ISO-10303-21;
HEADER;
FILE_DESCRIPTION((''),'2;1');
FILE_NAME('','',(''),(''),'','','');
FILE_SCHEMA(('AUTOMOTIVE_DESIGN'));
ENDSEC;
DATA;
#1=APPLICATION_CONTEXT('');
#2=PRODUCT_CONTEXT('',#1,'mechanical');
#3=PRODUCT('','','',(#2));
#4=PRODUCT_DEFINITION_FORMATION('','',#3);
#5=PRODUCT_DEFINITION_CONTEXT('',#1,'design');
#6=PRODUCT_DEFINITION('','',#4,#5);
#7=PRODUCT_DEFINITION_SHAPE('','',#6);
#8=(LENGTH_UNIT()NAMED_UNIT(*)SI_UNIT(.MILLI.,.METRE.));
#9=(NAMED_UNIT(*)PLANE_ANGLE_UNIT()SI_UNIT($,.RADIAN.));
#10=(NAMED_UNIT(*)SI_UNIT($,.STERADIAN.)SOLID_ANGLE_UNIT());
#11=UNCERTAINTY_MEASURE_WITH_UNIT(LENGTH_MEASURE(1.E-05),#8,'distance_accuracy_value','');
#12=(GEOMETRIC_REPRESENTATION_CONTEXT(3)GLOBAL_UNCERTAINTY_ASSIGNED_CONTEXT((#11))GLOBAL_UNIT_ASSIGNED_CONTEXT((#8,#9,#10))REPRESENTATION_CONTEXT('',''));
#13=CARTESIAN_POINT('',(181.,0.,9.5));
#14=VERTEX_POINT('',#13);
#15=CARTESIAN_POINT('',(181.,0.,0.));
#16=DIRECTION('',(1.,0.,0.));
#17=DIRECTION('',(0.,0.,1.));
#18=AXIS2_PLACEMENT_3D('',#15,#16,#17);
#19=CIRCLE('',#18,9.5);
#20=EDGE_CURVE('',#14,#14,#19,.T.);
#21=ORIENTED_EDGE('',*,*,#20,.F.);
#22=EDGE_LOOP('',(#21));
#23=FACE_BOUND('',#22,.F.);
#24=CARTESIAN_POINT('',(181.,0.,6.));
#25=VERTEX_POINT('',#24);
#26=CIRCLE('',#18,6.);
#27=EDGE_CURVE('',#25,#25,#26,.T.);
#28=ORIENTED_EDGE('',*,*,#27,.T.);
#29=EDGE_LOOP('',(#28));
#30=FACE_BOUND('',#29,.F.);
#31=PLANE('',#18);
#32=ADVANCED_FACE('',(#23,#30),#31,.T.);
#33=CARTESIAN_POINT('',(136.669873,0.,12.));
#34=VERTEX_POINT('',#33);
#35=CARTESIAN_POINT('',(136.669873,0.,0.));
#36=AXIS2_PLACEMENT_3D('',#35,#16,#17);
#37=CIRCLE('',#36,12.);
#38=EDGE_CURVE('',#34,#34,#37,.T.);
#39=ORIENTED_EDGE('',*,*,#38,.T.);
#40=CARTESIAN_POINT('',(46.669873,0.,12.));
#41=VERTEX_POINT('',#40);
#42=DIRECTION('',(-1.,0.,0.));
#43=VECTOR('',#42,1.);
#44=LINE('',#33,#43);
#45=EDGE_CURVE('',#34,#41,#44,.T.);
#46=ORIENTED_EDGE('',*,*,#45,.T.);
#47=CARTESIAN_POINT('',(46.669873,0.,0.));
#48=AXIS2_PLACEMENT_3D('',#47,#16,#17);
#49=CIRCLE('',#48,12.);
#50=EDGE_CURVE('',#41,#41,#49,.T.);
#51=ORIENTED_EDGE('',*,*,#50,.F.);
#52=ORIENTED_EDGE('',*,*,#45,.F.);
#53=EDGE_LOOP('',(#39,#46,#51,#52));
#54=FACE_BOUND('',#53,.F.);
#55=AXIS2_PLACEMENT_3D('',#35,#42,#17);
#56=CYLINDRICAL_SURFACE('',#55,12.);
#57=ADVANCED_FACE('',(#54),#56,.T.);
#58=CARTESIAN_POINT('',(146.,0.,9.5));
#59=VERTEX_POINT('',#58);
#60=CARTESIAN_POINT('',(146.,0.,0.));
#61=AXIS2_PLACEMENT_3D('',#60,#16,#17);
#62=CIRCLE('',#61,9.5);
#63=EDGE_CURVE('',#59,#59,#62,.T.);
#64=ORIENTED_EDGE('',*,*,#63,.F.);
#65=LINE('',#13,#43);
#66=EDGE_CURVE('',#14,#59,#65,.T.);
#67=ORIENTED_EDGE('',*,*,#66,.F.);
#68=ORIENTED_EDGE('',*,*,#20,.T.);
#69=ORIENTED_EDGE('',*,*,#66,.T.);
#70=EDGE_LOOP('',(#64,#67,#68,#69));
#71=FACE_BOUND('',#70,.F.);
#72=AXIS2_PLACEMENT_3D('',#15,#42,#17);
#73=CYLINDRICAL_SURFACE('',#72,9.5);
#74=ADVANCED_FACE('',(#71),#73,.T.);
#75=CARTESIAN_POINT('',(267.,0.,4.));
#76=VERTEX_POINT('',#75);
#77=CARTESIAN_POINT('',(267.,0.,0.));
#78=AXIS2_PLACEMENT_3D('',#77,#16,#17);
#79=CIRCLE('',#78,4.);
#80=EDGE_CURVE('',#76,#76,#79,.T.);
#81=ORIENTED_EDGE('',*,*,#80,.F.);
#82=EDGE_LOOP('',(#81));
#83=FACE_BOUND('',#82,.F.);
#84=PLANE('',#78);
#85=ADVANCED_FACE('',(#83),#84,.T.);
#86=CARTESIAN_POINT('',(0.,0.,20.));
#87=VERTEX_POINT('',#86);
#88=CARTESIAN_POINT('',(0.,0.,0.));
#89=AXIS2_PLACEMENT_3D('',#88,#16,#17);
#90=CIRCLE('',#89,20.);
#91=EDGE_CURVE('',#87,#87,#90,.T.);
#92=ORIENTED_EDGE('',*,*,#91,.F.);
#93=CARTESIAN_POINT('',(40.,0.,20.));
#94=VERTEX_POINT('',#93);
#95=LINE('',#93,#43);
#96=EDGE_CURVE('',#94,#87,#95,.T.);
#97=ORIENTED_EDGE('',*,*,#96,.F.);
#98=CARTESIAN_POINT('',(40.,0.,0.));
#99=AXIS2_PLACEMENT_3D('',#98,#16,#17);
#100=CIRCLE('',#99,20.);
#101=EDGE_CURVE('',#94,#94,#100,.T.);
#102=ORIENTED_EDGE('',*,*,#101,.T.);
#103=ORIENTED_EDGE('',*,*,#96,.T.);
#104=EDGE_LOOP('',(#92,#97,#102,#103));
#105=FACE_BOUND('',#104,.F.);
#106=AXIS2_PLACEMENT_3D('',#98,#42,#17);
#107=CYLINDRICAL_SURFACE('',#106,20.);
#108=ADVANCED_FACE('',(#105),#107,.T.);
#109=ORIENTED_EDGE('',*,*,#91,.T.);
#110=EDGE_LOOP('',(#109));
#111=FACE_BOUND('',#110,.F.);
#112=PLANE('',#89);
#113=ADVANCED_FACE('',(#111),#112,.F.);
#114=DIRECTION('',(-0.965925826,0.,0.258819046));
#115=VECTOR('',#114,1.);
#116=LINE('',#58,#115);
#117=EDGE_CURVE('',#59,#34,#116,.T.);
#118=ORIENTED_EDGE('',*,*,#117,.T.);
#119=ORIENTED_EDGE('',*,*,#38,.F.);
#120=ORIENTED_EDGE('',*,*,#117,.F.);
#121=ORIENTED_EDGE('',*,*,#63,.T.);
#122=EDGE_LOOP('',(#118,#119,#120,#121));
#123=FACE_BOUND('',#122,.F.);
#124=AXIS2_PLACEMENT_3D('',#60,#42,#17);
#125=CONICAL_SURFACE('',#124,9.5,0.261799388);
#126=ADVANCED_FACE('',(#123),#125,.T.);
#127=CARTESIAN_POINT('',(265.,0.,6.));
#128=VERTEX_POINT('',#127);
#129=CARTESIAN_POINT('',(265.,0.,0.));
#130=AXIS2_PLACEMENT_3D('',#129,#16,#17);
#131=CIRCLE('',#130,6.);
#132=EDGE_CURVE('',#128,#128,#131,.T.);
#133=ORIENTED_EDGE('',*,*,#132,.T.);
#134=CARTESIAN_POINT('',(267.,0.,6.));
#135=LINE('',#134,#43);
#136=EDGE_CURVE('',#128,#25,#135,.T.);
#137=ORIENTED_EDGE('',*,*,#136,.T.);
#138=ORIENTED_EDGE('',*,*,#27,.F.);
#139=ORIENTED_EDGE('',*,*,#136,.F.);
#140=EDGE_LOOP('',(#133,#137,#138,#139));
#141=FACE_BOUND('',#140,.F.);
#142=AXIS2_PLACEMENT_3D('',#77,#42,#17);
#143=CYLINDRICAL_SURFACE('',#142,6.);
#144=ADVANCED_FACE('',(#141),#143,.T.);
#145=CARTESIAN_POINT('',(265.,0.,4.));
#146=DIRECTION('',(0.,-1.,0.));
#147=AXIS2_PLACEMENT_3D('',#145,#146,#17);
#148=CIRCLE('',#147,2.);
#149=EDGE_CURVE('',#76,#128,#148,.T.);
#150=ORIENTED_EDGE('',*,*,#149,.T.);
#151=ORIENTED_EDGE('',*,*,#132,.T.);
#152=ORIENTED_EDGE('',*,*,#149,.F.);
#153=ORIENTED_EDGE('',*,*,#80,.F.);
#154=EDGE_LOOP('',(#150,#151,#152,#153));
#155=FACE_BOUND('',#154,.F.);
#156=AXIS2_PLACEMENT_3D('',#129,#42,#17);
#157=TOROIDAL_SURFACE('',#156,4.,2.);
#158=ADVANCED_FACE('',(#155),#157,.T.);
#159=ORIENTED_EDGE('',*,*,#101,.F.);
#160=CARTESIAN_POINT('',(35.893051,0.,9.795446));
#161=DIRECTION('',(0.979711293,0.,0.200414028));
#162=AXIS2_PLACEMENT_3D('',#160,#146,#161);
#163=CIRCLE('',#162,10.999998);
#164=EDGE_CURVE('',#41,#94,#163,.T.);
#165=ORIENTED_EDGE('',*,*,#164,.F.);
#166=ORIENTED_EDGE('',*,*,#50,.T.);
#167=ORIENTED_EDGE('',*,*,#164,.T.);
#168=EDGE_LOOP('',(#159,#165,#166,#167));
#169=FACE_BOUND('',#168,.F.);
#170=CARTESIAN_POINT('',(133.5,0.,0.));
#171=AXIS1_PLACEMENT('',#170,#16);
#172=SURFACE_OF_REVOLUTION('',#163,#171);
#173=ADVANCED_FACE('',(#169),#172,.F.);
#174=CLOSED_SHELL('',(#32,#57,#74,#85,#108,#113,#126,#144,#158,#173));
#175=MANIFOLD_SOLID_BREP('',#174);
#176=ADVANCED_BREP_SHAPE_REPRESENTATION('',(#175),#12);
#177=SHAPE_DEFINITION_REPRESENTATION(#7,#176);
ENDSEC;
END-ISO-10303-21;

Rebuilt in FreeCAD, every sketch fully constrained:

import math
import FreeCAD as App
import Part
import Sketcher

V = App.Vector
Q = App.Units.Quantity


def edges_at(feature, points):
    """Names of the edges that pass closest to the given points."""
    edges = feature.Shape.Edges
    near = lambda p: min(range(len(edges)), key=lambda i: edges[i].distToShape(Part.Vertex(*p))[0])
    return sorted({f"Edge{near(p) + 1}" for p in points})

doc = App.newDocument("Part")
body = doc.addObject("PartDesign::Body", "Body")

# Sketch on XZ plane
sketch1 = body.newObject("Sketcher::SketchObject", "Sketch")
sketch1.AttachmentSupport = (doc.getObject("XZ_Plane"), [""])
sketch1.MapMode = "FlatFace"
sketch1.addGeometry([
    Part.LineSegment(V(0, 0, 0), V(267, 0, 0)),  # 0
    Part.LineSegment(V(267, 0, 0), V(267, 6, 0)),  # 1
    Part.LineSegment(V(267, 6, 0), V(181, 6, 0)),  # 2
    Part.LineSegment(V(181, 6, 0), V(181, 9.5, 0)),  # 3
    Part.LineSegment(V(181, 9.5, 0), V(146, 9.5, 0)),  # 4
    Part.LineSegment(V(146, 9.5, 0), V(136.7, 12, 0)),  # 5
    Part.LineSegment(V(136.7, 12, 0), V(46.7, 12, 0)),  # 6
    Part.ArcOfCircle(Part.Circle(V(35.9, 9.8, 0), V(0, 0, 1), 11), math.radians(12), math.radians(68)),  # 7
    Part.LineSegment(V(40, 20, 0), V(0, 20, 0)),  # 8
    Part.LineSegment(V(0, 20, 0), V(0, 0, 0)),  # 9
], False)
sketch1.addConstraint([
    Sketcher.Constraint("Coincident", 0, 2, 1, 1),
    Sketcher.Constraint("Coincident", 1, 2, 2, 1),
    Sketcher.Constraint("Coincident", 2, 2, 3, 1),
    Sketcher.Constraint("Coincident", 3, 2, 4, 1),
    Sketcher.Constraint("Coincident", 4, 2, 5, 1),
    Sketcher.Constraint("Coincident", 5, 2, 6, 1),
    Sketcher.Constraint("Coincident", 6, 2, 7, 1),
    Sketcher.Constraint("Coincident", 7, 2, 8, 1),
    Sketcher.Constraint("Coincident", 8, 2, 9, 1),
    Sketcher.Constraint("Coincident", 9, 2, 0, 1),
    Sketcher.Constraint("Horizontal", 0),
    Sketcher.Constraint("Vertical", 1),
    Sketcher.Constraint("Horizontal", 2),
    Sketcher.Constraint("Vertical", 3),
    Sketcher.Constraint("Horizontal", 4),
    Sketcher.Constraint("Horizontal", 6),
    Sketcher.Constraint("Horizontal", 8),
    Sketcher.Constraint("Vertical", 9),
    Sketcher.Constraint("Coincident", 9, 2, -1, 1),
    Sketcher.Constraint("DistanceX", 0, 1, 0, 2, 267.0),
    Sketcher.Constraint("DistanceX", 2, 2, 2, 1, 86.0),
    Sketcher.Constraint("DistanceX", 4, 2, 4, 1, 35.0),
    Sketcher.Constraint("DistanceX", 6, 2, 6, 1, 90.0),
    Sketcher.Constraint("DistanceX", 8, 2, 8, 1, 40.0),
    Sketcher.Constraint("DistanceY", 1, 1, 1, 2, 6.0),
    Sketcher.Constraint("DistanceY", 9, 2, 9, 1, 20.0),
    Sketcher.Constraint("Angle", 5, Q("165 deg")),
    Sketcher.Constraint("DistanceY", 3, 1, 3, 2, 3.5),
    Sketcher.Constraint("DistanceY", -1, 1, 5, 2, 12.0),
    Sketcher.Constraint("Radius", 7, 10.999998),
])
revolution = body.newObject("PartDesign::Revolution", "Revolution")
revolution.Profile = sketch1
revolution.ReferenceAxis = (sketch1, ["H_Axis"])
revolution.Angle = 360
doc.recompute()

fillet = body.newObject("PartDesign::Fillet", "Fillet")
fillet.Base = (revolution, edges_at(revolution, [(267, 0, -6)]))
fillet.Radius = 2

doc.recompute()
